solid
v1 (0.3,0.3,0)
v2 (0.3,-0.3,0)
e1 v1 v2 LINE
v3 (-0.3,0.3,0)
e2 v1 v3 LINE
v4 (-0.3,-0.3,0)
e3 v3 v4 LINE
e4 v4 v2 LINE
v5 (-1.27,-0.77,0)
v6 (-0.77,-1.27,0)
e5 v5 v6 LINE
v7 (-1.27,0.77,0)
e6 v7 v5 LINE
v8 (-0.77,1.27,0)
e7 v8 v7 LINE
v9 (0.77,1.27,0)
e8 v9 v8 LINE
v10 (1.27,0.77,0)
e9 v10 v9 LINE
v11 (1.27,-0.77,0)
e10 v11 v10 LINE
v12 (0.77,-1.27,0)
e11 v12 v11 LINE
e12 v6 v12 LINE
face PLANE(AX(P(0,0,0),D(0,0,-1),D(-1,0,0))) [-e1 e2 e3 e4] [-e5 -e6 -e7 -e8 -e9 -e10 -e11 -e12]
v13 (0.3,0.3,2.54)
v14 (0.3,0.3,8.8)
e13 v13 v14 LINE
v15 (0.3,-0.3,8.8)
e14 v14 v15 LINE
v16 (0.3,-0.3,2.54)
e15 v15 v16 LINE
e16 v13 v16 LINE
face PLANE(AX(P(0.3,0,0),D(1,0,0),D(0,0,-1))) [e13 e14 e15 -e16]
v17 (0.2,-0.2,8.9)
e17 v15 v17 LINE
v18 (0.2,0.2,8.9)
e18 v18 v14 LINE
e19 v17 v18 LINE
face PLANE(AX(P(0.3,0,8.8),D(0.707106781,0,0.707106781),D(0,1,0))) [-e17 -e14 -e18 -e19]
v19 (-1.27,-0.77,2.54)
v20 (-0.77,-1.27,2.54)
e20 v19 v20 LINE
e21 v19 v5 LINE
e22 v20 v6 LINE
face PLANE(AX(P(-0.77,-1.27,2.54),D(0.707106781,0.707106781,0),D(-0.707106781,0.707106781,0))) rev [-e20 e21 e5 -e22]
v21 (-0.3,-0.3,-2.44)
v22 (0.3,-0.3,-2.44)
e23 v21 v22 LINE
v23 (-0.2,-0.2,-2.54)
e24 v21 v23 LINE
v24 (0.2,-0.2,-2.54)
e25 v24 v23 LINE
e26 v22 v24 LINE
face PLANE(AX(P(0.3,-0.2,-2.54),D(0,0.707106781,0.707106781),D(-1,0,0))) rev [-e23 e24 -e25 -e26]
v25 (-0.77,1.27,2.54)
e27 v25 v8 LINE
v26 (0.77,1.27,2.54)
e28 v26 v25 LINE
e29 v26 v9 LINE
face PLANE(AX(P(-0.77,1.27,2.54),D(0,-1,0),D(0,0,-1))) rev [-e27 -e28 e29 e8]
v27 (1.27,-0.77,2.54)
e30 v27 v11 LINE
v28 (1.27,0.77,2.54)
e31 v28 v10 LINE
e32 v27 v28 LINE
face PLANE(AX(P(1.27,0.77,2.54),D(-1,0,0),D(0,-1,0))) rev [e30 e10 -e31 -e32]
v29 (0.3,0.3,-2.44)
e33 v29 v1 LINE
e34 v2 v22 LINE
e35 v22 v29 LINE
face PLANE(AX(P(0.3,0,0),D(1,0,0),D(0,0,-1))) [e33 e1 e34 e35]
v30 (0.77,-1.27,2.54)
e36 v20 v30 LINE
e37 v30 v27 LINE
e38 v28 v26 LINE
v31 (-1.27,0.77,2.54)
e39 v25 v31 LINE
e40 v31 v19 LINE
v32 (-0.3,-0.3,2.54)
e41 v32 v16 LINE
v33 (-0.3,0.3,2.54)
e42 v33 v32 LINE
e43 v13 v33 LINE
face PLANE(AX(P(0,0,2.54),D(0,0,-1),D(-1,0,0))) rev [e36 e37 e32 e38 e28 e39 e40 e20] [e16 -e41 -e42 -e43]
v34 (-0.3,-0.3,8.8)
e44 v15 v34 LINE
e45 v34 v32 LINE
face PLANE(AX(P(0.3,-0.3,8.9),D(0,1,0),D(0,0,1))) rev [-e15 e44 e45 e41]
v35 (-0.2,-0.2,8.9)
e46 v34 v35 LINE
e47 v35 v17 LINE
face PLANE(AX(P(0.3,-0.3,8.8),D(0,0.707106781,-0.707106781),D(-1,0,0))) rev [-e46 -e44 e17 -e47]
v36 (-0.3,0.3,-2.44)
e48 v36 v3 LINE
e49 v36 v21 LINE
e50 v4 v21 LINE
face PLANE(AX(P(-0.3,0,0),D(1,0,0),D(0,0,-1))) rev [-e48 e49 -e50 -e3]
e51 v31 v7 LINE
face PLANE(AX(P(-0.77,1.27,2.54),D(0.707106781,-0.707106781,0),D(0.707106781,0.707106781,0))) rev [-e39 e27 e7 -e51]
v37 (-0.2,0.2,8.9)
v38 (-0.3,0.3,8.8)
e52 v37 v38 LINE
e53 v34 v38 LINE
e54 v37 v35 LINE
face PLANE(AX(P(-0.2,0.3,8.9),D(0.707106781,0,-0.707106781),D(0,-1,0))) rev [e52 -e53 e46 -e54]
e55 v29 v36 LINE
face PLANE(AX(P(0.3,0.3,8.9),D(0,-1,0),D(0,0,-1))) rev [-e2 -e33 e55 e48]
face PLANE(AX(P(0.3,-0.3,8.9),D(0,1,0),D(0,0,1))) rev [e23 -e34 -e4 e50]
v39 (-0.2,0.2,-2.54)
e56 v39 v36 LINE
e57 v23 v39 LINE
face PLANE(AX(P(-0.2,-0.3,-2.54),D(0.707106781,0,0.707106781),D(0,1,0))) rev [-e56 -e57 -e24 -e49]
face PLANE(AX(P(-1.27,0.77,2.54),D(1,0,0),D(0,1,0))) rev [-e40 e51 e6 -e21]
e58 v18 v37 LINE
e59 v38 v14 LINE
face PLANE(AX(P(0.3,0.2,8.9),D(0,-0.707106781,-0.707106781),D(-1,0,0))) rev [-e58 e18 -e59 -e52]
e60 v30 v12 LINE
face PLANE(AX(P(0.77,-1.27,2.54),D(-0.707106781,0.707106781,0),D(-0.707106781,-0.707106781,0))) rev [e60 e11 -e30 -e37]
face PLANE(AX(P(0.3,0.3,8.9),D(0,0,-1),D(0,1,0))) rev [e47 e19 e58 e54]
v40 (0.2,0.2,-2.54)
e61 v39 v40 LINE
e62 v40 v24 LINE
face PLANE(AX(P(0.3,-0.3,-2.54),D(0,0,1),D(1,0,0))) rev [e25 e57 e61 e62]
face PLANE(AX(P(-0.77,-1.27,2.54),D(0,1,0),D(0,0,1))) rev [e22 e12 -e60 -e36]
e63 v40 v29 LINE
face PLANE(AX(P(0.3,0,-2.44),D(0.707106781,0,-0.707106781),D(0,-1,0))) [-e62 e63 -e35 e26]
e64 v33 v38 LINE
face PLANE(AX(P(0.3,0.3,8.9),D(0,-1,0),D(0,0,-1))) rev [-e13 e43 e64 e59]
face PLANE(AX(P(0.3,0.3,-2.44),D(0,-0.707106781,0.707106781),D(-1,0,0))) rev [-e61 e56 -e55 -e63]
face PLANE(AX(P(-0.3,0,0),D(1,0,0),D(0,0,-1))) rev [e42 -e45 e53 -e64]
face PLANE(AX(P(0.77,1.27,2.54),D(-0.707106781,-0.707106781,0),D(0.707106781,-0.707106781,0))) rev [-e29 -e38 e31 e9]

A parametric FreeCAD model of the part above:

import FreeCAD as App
import Part
import Sketcher
Q = App.Units.Quantity


def edges_at(feature, points):
    """Names of the edges that pass closest to the given points."""
    edges = feature.Shape.Edges
    near = lambda p: min(range(len(edges)), key=lambda i: edges[i].distToShape(Part.Vertex(*p))[0])
    return sorted({f"Edge{near(p) + 1}" for p in points})

doc = App.newDocument("Part")
body = doc.addObject("PartDesign::Body", "Body")

# Sketch on XY plane
sketch1 = doc.addObject("Sketcher::SketchObject", "Sketch")
body.addObject(sketch1)
sketch1.AttachmentSupport = (doc.XY_Plane, [""])
sketch1.MapMode = "FlatFace"
sketch1.addGeometry([
    Part.LineSegment(App.Vector(0.8, 1.3, 0), App.Vector(-0.8, 1.3, 0)),  # 0
    Part.LineSegment(App.Vector(-0.8, 1.3, 0), App.Vector(-1.3, 0.8, 0)),  # 1
    Part.LineSegment(App.Vector(-1.3, 0.8, 0), App.Vector(-1.3, -0.8, 0)),  # 2
    Part.LineSegment(App.Vector(-1.3, -0.8, 0), App.Vector(-0.8, -1.3, 0)),  # 3
    Part.LineSegment(App.Vector(-0.8, -1.3, 0), App.Vector(0.8, -1.3, 0)),  # 4
    Part.LineSegment(App.Vector(0.8, -1.3, 0), App.Vector(1.3, -0.8, 0)),  # 5
    Part.LineSegment(App.Vector(1.3, -0.8, 0), App.Vector(1.3, 0.8, 0)),  # 6
    Part.LineSegment(App.Vector(1.3, 0.8, 0), App.Vector(0.8, 1.3, 0)),  # 7
], False)
sketch1.addConstraint([
    Sketcher.Constraint("Coincident", 0, 2, 1, 1),
    Sketcher.Constraint("Coincident", 1, 2, 2, 1),
    Sketcher.Constraint("Coincident", 2, 2, 3, 1),
    Sketcher.Constraint("Coincident", 3, 2, 4, 1),
    Sketcher.Constraint("Coincident", 4, 2, 5, 1),
    Sketcher.Constraint("Coincident", 5, 2, 6, 1),
    Sketcher.Constraint("Coincident", 6, 2, 7, 1),
    Sketcher.Constraint("Coincident", 7, 2, 0, 1),
    Sketcher.Constraint("Horizontal", 0),
    Sketcher.Constraint("Vertical", 2),
    Sketcher.Constraint("Horizontal", 4),
    Sketcher.Constraint("Vertical", 6),
    Sketcher.Constraint("Symmetric", 0, 2, 4, 2, -1, 1),
    Sketcher.Constraint("Symmetric", 1, 2, 5, 2, -1, 1),
    Sketcher.Constraint("Perpendicular", 1, 3),
    Sketcher.Constraint("Perpendicular", 5, 7),
    Sketcher.Constraint("Horizontal", 2, 2, 5, 2),
    Sketcher.Constraint("Horizontal", 1, 2, 6, 2),
    Sketcher.Constraint("Vertical", 0, 2, 3, 2),
    Sketcher.Constraint("Equal", 4, 2),
    Sketcher.Constraint("DistanceX", 0, 2, 0, 1, Q("1.54 mm")),
    Sketcher.Constraint("DistanceX", 1, 2, 0, 2, Q("0.5 mm")),
])
pad1 = doc.addObject("PartDesign::Pad", "Pad")
body.addObject(pad1)
pad1.Profile = sketch1
pad1.Length = 2.54

# Sketch on YZ plane
sketch2 = doc.addObject("Sketcher::SketchObject", "Sketch001")
body.addObject(sketch2)
sketch2.AttachmentSupport = (doc.YZ_Plane, [""])
sketch2.MapMode = "FlatFace"
sketch2.addGeometry([
    Part.LineSegment(App.Vector(0.3, 8.9, 0), App.Vector(-0.3, 8.9, 0)),
    Part.LineSegment(App.Vector(-0.3, 8.9, 0), App.Vector(-0.3, -2.5, 0)),
    Part.LineSegment(App.Vector(-0.3, -2.5, 0), App.Vector(0.3, -2.5, 0)),
    Part.LineSegment(App.Vector(0.3, -2.5, 0), App.Vector(0.3, 8.9, 0)),
], False)
sketch2.addConstraint([
    Sketcher.Constraint("Coincident", 0, 2, 1, 1),
    Sketcher.Constraint("Coincident", 1, 2, 2, 1),
    Sketcher.Constraint("Coincident", 2, 2, 3, 1),
    Sketcher.Constraint("Coincident", 3, 2, 0, 1),
    Sketcher.Constraint("Horizontal", 0),
    Sketcher.Constraint("Vertical", 1),
    Sketcher.Constraint("Horizontal", 2),
    Sketcher.Constraint("Vertical", 3),
    Sketcher.Constraint("DistanceX", 0, 2, 0, 1, Q("0.6 mm")),
    Sketcher.Constraint("DistanceY", 1, 2, 1, 1, Q("11.44 mm")),
    Sketcher.Constraint("DistanceX", 0, 2, -1, 1, Q("0.3 mm")),
    Sketcher.Constraint("DistanceY", -1, 1, 0, 2, Q("8.9 mm")),
])
pad2 = doc.addObject("PartDesign::Pad", "Pad001")
body.addObject(pad2)
pad2.Profile = sketch2
pad2.Length = 0.6
pad2.Midplane = True
doc.recompute()

chamfer = doc.addObject("PartDesign::Chamfer", "Chamfer")
body.addObject(chamfer)
chamfer.Base = (pad2, edges_at(pad2, [
    (0, -0.3, 8.9),
    (0.3, 0, 8.9),
    (-0.3, 0, -2.54),
    (0, -0.3, -2.54),
    (0, 0.3, -2.54),
    (-0.3, 0, 8.9),
    (0, 0.3, 8.9),
    (0.3, 0, -2.54),
]))
chamfer.Size = 0.1

doc.recompute()
